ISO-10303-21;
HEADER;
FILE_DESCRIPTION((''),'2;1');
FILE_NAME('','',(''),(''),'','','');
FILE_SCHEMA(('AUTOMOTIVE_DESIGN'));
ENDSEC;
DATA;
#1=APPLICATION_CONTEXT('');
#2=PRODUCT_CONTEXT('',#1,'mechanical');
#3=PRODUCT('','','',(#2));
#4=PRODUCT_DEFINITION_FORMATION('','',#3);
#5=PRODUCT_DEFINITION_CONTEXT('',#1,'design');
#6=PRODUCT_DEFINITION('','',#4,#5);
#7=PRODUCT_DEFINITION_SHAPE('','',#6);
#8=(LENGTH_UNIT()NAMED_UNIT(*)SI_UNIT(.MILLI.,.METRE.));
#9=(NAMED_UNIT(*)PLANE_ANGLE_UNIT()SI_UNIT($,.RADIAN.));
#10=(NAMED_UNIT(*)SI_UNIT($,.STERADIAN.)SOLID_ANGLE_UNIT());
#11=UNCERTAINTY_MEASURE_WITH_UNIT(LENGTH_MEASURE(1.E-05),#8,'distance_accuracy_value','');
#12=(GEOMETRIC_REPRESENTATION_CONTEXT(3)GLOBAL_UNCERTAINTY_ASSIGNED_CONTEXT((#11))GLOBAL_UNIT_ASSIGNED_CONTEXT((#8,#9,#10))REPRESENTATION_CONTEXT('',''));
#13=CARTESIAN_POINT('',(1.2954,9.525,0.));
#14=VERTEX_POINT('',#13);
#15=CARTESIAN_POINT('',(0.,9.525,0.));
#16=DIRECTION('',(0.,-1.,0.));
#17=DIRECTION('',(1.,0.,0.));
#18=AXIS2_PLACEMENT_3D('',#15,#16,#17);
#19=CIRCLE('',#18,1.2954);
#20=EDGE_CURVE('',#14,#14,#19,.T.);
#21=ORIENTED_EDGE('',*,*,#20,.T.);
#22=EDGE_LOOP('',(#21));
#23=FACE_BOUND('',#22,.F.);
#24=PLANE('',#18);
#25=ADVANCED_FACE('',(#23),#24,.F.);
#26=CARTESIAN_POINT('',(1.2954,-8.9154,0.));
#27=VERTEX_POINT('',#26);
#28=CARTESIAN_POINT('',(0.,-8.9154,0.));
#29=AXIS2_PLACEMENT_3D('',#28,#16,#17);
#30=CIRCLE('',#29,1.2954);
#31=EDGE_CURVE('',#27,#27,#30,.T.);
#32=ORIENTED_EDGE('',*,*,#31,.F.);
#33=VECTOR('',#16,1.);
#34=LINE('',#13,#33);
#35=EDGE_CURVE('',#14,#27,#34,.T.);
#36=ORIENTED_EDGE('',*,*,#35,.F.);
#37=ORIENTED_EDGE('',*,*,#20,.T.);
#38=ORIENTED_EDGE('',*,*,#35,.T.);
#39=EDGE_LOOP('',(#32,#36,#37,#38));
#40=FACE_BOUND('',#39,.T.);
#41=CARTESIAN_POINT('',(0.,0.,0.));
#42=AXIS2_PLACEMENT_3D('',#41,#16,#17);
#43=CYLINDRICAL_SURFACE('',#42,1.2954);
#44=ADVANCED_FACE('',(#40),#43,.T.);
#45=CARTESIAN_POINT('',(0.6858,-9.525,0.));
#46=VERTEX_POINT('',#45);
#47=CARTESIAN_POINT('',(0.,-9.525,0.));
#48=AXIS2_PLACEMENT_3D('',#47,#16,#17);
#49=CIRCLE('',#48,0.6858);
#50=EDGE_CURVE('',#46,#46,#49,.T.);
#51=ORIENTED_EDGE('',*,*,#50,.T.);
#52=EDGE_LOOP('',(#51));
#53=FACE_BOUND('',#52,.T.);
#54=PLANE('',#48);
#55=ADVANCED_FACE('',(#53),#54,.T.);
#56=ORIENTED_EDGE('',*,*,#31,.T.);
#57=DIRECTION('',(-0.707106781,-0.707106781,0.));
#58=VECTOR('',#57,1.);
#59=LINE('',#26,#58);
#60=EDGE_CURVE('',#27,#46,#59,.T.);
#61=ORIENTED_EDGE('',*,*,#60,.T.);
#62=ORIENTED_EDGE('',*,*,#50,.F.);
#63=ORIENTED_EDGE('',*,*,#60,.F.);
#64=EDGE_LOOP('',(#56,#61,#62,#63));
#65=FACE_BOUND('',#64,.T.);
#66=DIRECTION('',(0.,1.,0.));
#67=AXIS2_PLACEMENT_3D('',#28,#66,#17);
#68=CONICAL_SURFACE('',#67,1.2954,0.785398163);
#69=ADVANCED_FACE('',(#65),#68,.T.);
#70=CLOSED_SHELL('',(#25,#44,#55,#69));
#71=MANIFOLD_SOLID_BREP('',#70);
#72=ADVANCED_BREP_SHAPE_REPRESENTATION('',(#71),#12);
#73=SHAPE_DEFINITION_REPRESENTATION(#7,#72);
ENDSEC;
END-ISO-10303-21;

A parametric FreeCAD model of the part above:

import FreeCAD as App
import Part
import Sketcher
from FreeCAD import Vector
Q = App.Units.Quantity


def edges_at(feature, points):
    """Names of the edges that pass closest to the given points."""
    edges = feature.Shape.Edges
    near = lambda p: min(range(len(edges)), key=lambda i: edges[i].distToShape(Part.Vertex(*p))[0])
    return sorted({f"Edge{near(p) + 1}" for p in points})

doc = App.newDocument("Part")
body = doc.addObject("PartDesign::Body", "Body")

# Sketch on XZ plane
sketch1 = doc.addObject("Sketcher::SketchObject", "Sketch")
body.addObject(sketch1)
sketch1.AttachmentSupport = (doc.XZ_Plane, [""])
sketch1.MapMode = "FlatFace"
sketch1.addGeometry(Part.Circle(Vector(0, 0, 0), Vector(0, 0, 1), 1.3), False)
sketch1.addConstraint(Sketcher.Constraint("Coincident", 0, 3, -1, 1))
sketch1.addConstraint(Sketcher.Constraint("Diameter", 0, Q("0.102 in")))
pad1 = doc.addObject("PartDesign::Pad", "Pad")
body.addObject(pad1)
pad1.Profile = sketch1
pad1.Length = Q("0.75 in")
pad1.Midplane = True
doc.recompute()

chamfer = doc.addObject("PartDesign::Chamfer", "Chamfer")
body.addObject(chamfer)
chamfer.Base = (pad1, edges_at(pad1, [(-1.295, -9.525, 0)]))
chamfer.Size = Q("0.024 in")

doc.recompute()
